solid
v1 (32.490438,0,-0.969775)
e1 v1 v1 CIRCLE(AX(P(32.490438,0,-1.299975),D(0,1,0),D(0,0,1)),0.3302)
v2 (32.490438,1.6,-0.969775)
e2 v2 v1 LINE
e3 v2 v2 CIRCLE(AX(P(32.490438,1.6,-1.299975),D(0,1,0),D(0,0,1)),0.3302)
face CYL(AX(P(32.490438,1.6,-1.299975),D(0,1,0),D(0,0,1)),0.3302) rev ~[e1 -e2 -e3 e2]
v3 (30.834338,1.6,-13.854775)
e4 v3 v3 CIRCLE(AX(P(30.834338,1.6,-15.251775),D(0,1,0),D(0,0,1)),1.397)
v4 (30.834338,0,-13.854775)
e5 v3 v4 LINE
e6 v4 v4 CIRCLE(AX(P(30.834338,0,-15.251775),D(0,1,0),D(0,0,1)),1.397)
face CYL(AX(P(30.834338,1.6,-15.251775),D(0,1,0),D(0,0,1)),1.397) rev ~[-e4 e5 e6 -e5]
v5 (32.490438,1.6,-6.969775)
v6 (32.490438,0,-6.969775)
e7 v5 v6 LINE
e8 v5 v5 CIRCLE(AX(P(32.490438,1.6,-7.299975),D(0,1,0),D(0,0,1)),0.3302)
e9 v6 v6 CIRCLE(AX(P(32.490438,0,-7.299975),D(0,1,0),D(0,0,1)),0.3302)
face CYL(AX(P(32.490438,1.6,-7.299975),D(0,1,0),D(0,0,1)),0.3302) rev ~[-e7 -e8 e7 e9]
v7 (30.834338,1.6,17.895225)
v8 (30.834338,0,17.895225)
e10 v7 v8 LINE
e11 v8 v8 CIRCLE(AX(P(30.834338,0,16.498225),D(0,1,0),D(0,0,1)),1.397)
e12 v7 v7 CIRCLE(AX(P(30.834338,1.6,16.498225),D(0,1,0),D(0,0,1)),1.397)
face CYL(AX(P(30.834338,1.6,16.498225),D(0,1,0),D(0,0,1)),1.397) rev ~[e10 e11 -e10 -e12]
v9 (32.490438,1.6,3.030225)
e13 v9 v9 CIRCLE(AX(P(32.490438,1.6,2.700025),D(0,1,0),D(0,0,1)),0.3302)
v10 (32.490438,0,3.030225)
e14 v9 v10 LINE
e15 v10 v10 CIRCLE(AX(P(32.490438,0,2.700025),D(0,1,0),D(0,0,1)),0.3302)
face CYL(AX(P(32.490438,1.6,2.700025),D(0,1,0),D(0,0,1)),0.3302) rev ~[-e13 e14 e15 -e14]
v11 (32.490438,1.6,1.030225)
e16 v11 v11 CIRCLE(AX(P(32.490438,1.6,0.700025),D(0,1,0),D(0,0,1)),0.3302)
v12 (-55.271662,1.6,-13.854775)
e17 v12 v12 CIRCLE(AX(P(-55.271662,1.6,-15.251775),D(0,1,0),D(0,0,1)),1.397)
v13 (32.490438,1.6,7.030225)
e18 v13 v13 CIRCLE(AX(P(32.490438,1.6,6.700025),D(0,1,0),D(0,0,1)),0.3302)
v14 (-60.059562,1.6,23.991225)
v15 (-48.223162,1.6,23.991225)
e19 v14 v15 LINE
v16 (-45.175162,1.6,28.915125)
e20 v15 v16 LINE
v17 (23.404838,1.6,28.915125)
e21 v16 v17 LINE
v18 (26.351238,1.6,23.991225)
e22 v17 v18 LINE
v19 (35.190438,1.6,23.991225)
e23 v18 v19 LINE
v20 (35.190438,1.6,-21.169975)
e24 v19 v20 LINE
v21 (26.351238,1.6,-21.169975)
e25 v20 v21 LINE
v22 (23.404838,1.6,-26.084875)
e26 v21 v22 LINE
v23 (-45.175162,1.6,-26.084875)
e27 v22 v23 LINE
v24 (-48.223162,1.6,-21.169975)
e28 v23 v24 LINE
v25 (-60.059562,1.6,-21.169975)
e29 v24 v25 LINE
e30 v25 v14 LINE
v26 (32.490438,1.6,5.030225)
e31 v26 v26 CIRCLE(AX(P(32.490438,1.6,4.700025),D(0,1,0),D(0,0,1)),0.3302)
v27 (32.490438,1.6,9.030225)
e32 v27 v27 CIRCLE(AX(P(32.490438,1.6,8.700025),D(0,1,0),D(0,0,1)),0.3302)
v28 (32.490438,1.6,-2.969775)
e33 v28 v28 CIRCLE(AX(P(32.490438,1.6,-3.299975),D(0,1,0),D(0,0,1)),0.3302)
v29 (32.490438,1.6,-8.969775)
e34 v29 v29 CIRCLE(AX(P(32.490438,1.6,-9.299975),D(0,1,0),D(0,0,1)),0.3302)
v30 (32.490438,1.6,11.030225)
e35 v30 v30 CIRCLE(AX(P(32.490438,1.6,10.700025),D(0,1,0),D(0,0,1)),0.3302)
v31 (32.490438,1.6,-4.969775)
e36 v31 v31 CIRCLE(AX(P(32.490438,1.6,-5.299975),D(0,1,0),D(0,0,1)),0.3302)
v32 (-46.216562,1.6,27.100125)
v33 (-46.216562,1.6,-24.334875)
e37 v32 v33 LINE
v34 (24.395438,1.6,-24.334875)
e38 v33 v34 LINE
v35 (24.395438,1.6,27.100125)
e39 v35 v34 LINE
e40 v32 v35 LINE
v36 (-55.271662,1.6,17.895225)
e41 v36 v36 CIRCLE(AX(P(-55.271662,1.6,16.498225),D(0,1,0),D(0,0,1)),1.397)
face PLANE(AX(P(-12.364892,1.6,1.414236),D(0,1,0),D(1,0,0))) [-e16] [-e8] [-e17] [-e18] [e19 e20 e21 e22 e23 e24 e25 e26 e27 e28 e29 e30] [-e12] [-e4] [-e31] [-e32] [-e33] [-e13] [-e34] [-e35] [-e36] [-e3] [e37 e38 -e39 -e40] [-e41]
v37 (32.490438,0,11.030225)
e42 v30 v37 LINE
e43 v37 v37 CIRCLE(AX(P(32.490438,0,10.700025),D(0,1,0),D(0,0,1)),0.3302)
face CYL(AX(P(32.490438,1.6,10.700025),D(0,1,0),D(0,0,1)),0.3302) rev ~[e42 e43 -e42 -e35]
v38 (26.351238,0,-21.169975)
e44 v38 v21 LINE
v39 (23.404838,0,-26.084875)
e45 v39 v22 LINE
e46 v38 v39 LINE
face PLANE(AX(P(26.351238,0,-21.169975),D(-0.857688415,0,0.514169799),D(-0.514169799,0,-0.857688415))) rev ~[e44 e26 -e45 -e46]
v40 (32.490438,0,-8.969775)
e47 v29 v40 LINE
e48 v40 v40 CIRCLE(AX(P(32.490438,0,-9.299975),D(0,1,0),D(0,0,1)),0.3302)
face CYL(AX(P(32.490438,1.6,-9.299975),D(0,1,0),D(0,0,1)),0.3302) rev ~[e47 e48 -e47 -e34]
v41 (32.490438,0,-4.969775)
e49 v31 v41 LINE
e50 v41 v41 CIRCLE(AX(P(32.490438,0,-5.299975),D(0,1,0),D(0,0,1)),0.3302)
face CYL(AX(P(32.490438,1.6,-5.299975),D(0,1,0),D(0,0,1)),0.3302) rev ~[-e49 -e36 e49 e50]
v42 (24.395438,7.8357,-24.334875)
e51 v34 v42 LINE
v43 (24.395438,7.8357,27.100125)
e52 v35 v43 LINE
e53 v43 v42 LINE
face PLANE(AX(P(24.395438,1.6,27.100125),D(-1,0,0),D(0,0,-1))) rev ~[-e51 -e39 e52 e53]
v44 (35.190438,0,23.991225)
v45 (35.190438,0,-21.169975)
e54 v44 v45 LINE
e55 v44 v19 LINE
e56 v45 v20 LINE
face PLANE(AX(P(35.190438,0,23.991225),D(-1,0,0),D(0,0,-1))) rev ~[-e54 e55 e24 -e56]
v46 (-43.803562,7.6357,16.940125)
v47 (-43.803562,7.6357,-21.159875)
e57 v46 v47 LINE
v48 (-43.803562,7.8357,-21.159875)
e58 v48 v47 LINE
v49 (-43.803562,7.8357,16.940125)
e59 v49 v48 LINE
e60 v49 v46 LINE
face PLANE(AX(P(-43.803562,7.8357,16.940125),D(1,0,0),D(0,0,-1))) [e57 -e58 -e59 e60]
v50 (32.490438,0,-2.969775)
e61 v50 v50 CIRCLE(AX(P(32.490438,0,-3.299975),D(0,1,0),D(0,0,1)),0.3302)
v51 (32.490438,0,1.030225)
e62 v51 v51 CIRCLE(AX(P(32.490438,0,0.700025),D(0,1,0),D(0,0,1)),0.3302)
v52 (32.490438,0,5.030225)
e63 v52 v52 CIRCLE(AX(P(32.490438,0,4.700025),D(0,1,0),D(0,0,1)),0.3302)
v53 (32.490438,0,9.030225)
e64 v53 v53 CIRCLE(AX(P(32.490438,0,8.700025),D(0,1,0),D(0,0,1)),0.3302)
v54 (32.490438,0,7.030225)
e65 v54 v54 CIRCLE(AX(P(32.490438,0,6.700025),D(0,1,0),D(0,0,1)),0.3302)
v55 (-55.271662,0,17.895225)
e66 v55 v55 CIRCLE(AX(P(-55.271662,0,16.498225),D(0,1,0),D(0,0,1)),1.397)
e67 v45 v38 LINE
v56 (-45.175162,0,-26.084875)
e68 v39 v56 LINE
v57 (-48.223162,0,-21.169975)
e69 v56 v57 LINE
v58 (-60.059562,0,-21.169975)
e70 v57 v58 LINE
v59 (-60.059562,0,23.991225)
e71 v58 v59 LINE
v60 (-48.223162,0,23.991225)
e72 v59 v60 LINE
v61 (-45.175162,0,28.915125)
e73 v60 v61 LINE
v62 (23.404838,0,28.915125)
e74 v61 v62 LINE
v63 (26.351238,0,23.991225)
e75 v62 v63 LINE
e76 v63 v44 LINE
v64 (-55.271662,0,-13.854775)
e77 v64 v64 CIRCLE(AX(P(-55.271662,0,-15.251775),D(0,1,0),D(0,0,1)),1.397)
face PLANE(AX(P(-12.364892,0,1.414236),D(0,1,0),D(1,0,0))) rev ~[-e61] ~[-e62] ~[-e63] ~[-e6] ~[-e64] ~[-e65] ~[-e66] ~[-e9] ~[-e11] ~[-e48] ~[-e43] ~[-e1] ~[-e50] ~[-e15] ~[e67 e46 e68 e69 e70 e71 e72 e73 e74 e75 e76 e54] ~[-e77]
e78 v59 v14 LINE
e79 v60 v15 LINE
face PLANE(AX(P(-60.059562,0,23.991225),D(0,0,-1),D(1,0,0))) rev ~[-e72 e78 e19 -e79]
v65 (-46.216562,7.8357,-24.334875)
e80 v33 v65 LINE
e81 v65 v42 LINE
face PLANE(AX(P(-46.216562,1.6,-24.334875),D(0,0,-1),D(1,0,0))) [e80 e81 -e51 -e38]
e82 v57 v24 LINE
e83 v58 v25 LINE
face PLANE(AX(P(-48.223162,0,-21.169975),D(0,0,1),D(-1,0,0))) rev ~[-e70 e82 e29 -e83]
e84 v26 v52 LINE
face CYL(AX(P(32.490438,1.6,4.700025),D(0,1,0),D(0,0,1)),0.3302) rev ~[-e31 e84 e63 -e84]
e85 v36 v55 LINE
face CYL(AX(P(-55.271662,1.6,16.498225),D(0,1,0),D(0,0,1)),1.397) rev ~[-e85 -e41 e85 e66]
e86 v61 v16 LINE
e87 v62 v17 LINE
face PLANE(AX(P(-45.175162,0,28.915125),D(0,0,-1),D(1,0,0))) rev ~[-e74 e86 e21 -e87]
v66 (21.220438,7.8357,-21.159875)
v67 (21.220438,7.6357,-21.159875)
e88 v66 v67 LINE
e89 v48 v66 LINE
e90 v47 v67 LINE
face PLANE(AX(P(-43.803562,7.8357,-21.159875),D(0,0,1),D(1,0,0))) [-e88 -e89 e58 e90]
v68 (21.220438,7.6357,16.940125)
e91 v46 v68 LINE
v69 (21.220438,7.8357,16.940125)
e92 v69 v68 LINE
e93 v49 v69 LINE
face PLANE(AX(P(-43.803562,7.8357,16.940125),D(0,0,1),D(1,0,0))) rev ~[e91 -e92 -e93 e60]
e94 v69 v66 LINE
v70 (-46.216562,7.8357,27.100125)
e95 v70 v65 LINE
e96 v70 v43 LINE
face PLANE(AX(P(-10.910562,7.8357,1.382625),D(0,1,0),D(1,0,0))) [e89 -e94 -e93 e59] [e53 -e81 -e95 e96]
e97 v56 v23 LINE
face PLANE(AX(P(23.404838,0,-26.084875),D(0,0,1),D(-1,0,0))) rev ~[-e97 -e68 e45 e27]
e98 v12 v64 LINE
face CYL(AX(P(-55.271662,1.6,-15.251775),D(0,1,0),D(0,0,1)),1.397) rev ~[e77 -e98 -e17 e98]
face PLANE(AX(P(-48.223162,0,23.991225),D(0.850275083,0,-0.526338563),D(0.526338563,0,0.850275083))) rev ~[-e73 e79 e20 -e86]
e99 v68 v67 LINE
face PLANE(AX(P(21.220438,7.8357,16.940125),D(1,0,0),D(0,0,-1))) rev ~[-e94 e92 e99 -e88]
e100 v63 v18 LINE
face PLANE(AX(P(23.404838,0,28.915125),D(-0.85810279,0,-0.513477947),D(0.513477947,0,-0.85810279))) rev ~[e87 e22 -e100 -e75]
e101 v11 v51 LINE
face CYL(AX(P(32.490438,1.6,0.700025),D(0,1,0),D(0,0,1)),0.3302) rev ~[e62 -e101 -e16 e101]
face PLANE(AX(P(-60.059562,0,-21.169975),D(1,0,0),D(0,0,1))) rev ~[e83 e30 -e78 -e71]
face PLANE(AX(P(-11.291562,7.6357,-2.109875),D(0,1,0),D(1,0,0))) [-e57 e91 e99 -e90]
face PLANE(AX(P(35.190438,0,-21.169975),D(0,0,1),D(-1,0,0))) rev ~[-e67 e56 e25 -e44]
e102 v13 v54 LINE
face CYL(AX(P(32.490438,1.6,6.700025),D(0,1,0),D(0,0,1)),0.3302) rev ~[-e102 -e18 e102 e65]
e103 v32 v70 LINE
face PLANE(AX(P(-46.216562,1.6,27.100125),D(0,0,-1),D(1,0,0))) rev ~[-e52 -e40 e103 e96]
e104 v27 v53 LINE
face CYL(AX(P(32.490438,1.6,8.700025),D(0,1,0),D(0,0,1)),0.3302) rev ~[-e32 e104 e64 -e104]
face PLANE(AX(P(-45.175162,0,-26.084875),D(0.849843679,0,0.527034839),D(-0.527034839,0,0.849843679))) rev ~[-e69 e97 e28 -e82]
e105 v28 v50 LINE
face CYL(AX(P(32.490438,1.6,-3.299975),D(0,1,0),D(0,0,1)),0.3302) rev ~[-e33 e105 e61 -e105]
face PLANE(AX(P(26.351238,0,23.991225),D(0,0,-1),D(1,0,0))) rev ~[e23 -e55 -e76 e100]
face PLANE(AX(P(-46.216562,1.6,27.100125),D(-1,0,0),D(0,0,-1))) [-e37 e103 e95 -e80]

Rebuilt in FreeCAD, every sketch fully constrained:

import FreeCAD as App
import Part
import Sketcher

V = App.Vector
Q = App.Units.Quantity

doc = App.newDocument("Part")
params = doc.addObject("Spreadsheet::Sheet", "Params")
for row, (alias, value) in enumerate([
    ("sketch1_width", "2.7 in"),
    ("sketch1_width2", "0.466 in"),
    ("sketch1_width3", "0.348 in"),
    ("sketch1_height", "1.778 in"),
    ("pad1_length", "1.6 mm"),
    ("sketch2_diameter", "0.11 in"),
    ("sketch3_width", "2.78 in"),
    ("sketch3_height", "2.025 in"),
    ("pad2_length", "0.2455 in"),
    ("sketch4_height", "1.5 in"),
    ("sketch4_width", "2.56 in"),
    ("pocket2_length", "0.2 mm"),
    ("sketch5_diameter", "0.026 in"),
    ("linearpattern_pitch", "2 mm"),
], start=1):
    params.set(f"A{row}", alias)
    params.set(f"B{row}", "=" + value)
    params.setAlias(f"B{row}", alias)

body = doc.addObject("PartDesign::Body", "Body")

sketch1 = body.newObject("Sketcher::SketchObject", "Sketch")
sketch1.AttachmentSupport = (doc.getObject("XZ_Plane"), [""])
sketch1.MapMode = "FlatFace"
sketch1.addGeometry(Part.LineSegment(V(-60, -21, 0), V(-60, 24, 0)), False)
sketch1.addGeometry(Part.LineSegment(V(-60, 24, 0), V(-48, 24, 0)), False)
sketch1.addGeometry(Part.LineSegment(V(-48, 24, 0), V(-45, 29, 0)), False)
sketch1.addGeometry(Part.LineSegment(V(-45, 29, 0), V(23, 29, 0)), False)
sketch1.addGeometry(Part.LineSegment(V(23, 29, 0), V(26, 24, 0)), False)
sketch1.addGeometry(Part.LineSegment(V(26, 24, 0), V(35, 24, 0)), False)
sketch1.addGeometry(Part.LineSegment(V(35, 24, 0), V(35, -21, 0)), False)
sketch1.addGeometry(Part.LineSegment(V(35, -21, 0), V(26, -21, 0)), False)
sketch1.addGeometry(Part.LineSegment(V(26, -21, 0), V(23, -26, 0)), False)
sketch1.addGeometry(Part.LineSegment(V(23, -26, 0), V(-45, -26, 0)), False)
sketch1.addGeometry(Part.LineSegment(V(-45, -26, 0), V(-48, -21, 0)), False)
sketch1.addGeometry(Part.LineSegment(V(-48, -21, 0), V(-60, -21, 0)), False)
sketch1.addConstraint(Sketcher.Constraint("Coincident", 0, 2, 1, 1))
sketch1.addConstraint(Sketcher.Constraint("Coincident", 1, 2, 2, 1))
sketch1.addConstraint(Sketcher.Constraint("Coincident", 2, 2, 3, 1))
sketch1.addConstraint(Sketcher.Constraint("Coincident", 3, 2, 4, 1))
sketch1.addConstraint(Sketcher.Constraint("Coincident", 4, 2, 5, 1))
sketch1.addConstraint(Sketcher.Constraint("Coincident", 5, 2, 6, 1))
sketch1.addConstraint(Sketcher.Constraint("Coincident", 6, 2, 7, 1))
sketch1.addConstraint(Sketcher.Constraint("Coincident", 7, 2, 8, 1))
sketch1.addConstraint(Sketcher.Constraint("Coincident", 8, 2, 9, 1))
sketch1.addConstraint(Sketcher.Constraint("Coincident", 9, 2, 10, 1))
sketch1.addConstraint(Sketcher.Constraint("Coincident", 10, 2, 11, 1))
sketch1.addConstraint(Sketcher.Constraint("Coincident", 11, 2, 0, 1))
sketch1.addConstraint(Sketcher.Constraint("Vertical", 0))
sketch1.addConstraint(Sketcher.Constraint("Horizontal", 1))
sketch1.addConstraint(Sketcher.Constraint("Horizontal", 3))
sketch1.addConstraint(Sketcher.Constraint("Horizontal", 5))
sketch1.addConstraint(Sketcher.Constraint("Vertical", 6))
sketch1.addConstraint(Sketcher.Constraint("Horizontal", 7))
sketch1.addConstraint(Sketcher.Constraint("Horizontal", 9))
sketch1.addConstraint(Sketcher.Constraint("Horizontal", 11))
sketch1.addConstraint(Sketcher.Constraint("Horizontal", 1, 2, 4, 2))
sketch1.addConstraint(Sketcher.Constraint("Horizontal", 7, 2, 10, 2))
sketch1.addConstraint(Sketcher.Constraint("Vertical", 4, 2, 7, 2))
sketch1.addConstraint(Sketcher.Constraint("Vertical", 3, 2, 8, 2))
sketch1.addConstraint(Sketcher.Constraint("Vertical", 2, 2, 9, 2))
sketch1.addConstraint(Sketcher.Constraint("Vertical", 1, 2, 10, 2))
sketch1.addConstraint(Sketcher.Constraint("DistanceX", 3, 1, 3, 2, Q("2.7 in")))
sketch1.addConstraint(Sketcher.Constraint("DistanceX", 1, 1, 1, 2, Q("0.466 in")))
sketch1.addConstraint(Sketcher.Constraint("DistanceX", 5, 1, 5, 2, Q("0.348 in")))
sketch1.addConstraint(Sketcher.Constraint("DistanceY", 0, 1, 0, 2, Q("1.778 in")))
sketch1.addConstraint(Sketcher.Constraint("DistanceX", 1, 2, 2, 2, Q("0.12 in")))
sketch1.addConstraint(Sketcher.Constraint("DistanceX", 0, 2, 5, 2, Q("3.75 in")))
sketch1.addConstraint(Sketcher.Constraint("DistanceY", 8, 2, 7, 2, Q("0.1935 in")))
sketch1.addConstraint(Sketcher.Constraint("DistanceY", 1, 2, 2, 2, 4.9239))
sketch1.addConstraint(Sketcher.Constraint("DistanceX", 0, 2, -1, 1, 60.059562))
sketch1.addConstraint(Sketcher.Constraint("DistanceY", -1, 1, 0, 2, 23.991225))
sketch1.setExpression("Constraints[26]", "Params.sketch1_width")
sketch1.setExpression("Constraints[27]", "Params.sketch1_width2")
sketch1.setExpression("Constraints[28]", "Params.sketch1_width3")
sketch1.setExpression("Constraints[29]", "Params.sketch1_height")
pad1 = body.newObject("PartDesign::Pad", "Pad")
pad1.Profile = sketch1
pad1.setExpression("Length", "Params.pad1_length")
pad1.Reversed = True

sketch2 = body.newObject("Sketcher::SketchObject", "Sketch001")
sketch2.AttachmentSupport = (doc.getObject("XZ_Plane"), [""])
sketch2.MapMode = "FlatFace"
sketch2.AttachmentOffset = App.Placement(V(0, 0, -1.6), App.Rotation())
sketch2.addGeometry(Part.Circle(V(-55.3, -15.3, 0), V(0, 0, 1), 1.4), False)
sketch2.addGeometry(Part.Circle(V(-55.3, 16.5, 0), V(0, 0, 1), 1.4), False)
sketch2.addGeometry(Part.Circle(V(30.8, 16.5, 0), V(0, 0, 1), 1.4), False)
sketch2.addGeometry(Part.Circle(V(30.8, -15.3, 0), V(0, 0, 1), 1.4), False)
sketch2.addConstraint(Sketcher.Constraint("Equal", 0, 1))
sketch2.addConstraint(Sketcher.Constraint("Equal", 1, 2))
sketch2.addConstraint(Sketcher.Constraint("Equal", 2, 3))
sketch2.addConstraint(Sketcher.Constraint("Horizontal", 1, 3, 2, 3))
sketch2.addConstraint(Sketcher.Constraint("Horizontal", 0, 3, 3, 3))
sketch2.addConstraint(Sketcher.Constraint("Vertical", 0, 3, 1, 3))
sketch2.addConstraint(Sketcher.Constraint("Vertical", 2, 3, 3, 3))
sketch2.addConstraint(Sketcher.Constraint("Diameter", 0, Q("0.11 in")))
sketch2.addConstraint(Sketcher.Constraint("DistanceY", 0, 3, 1, 3, Q("1.25 in")))
sketch2.addConstraint(Sketcher.Constraint("DistanceX", 1, 3, 2, 3, Q("3.39 in")))
sketch2.addConstraint(Sketcher.Constraint("DistanceX", 0, 3, -1, 1, 55.271662))
sketch2.addConstraint(Sketcher.Constraint("DistanceY", 0, 3, -1, 1, 15.251775))
sketch2.setExpression("Constraints[7]", "Params.sketch2_diameter")
pocket1 = body.newObject("PartDesign::Pocket", "Pocket")
pocket1.Profile = sketch2
pocket1.Type = "ThroughAll"
pocket1.Reversed = True

sketch3 = body.newObject("Sketcher::SketchObject", "Sketch002")
sketch3.AttachmentSupport = (doc.getObject("XZ_Plane"), [""])
sketch3.MapMode = "FlatFace"
sketch3.AttachmentOffset = App.Placement(V(0, 0, -1.6), App.Rotation())
sketch3.addGeometry(Part.LineSegment(V(-46, -24, 0), V(-46, 27, 0)), False)
sketch3.addGeometry(Part.LineSegment(V(-46, 27, 0), V(24, 27, 0)), False)
sketch3.addGeometry(Part.LineSegment(V(24, 27, 0), V(24, -24, 0)), False)
sketch3.addGeometry(Part.LineSegment(V(24, -24, 0), V(-46, -24, 0)), False)
sketch3.addConstraint(Sketcher.Constraint("Coincident", 0, 2, 1, 1))
sketch3.addConstraint(Sketcher.Constraint("Coincident", 1, 2, 2, 1))
sketch3.addConstraint(Sketcher.Constraint("Coincident", 2, 2, 3, 1))
sketch3.addConstraint(Sketcher.Constraint("Coincident", 3, 2, 0, 1))
sketch3.addConstraint(Sketcher.Constraint("Vertical", 0))
sketch3.addConstraint(Sketcher.Constraint("Horizontal", 1))
sketch3.addConstraint(Sketcher.Constraint("Vertical", 2))
sketch3.addConstraint(Sketcher.Constraint("Horizontal", 3))
sketch3.addConstraint(Sketcher.Constraint("DistanceX", 1, 1, 1, 2, Q("2.78 in")))
sketch3.addConstraint(Sketcher.Constraint("DistanceY", 0, 1, 0, 2, Q("2.025 in")))
sketch3.addConstraint(Sketcher.Constraint("DistanceX", 0, 2, -1, 1, 46.216562))
sketch3.addConstraint(Sketcher.Constraint("DistanceY", -1, 1, 0, 2, 27.100125))
sketch3.setExpression("Constraints[8]", "Params.sketch3_width")
sketch3.setExpression("Constraints[9]", "Params.sketch3_height")
pad2 = body.newObject("PartDesign::Pad", "Pad001")
pad2.Profile = sketch3
pad2.setExpression("Length", "Params.pad2_length")
pad2.Reversed = True

sketch4 = body.newObject("Sketcher::SketchObject", "Sketch003")
sketch4.AttachmentSupport = (doc.getObject("XZ_Plane"), [""])
sketch4.MapMode = "FlatFace"
sketch4.AttachmentOffset = App.Placement(V(0, 0, -7.8357), App.Rotation())
sketch4.addGeometry(Part.LineSegment(V(-44, -21, 0), V(-44, 17, 0)), False)
sketch4.addGeometry(Part.LineSegment(V(-44, 17, 0), V(21, 17, 0)), False)
sketch4.addGeometry(Part.LineSegment(V(21, 17, 0), V(21, -21, 0)), False)
sketch4.addGeometry(Part.LineSegment(V(21, -21, 0), V(-44, -21, 0)), False)
sketch4.addConstraint(Sketcher.Constraint("Coincident", 0, 2, 1, 1))
sketch4.addConstraint(Sketcher.Constraint("Coincident", 1, 2, 2, 1))
sketch4.addConstraint(Sketcher.Constraint("Coincident", 2, 2, 3, 1))
sketch4.addConstraint(Sketcher.Constraint("Coincident", 3, 2, 0, 1))
sketch4.addConstraint(Sketcher.Constraint("Vertical", 0))
sketch4.addConstraint(Sketcher.Constraint("Horizontal", 1))
sketch4.addConstraint(Sketcher.Constraint("Vertical", 2))
sketch4.addConstraint(Sketcher.Constraint("Horizontal", 3))
sketch4.addConstraint(Sketcher.Constraint("DistanceY", 0, 1, 0, 2, Q("1.5 in")))
sketch4.addConstraint(Sketcher.Constraint("DistanceX", 1, 1, 1, 2, Q("2.56 in")))
sketch4.addConstraint(Sketcher.Constraint("DistanceX", 0, 2, -1, 1, 43.803562))
sketch4.addConstraint(Sketcher.Constraint("DistanceY", -1, 1, 0, 2, 16.940125))
sketch4.setExpression("Constraints[8]", "Params.sketch4_height")
sketch4.setExpression("Constraints[9]", "Params.sketch4_width")
pocket2 = body.newObject("PartDesign::Pocket", "Pocket001")
pocket2.Profile = sketch4
pocket2.setExpression("Length", "Params.pocket2_length")
pocket2.Reversed = True

sketch5 = body.newObject("Sketcher::SketchObject", "Sketch004")
sketch5.AttachmentSupport = (doc.getObject("XZ_Plane"), [""])
sketch5.MapMode = "FlatFace"
sketch5.AttachmentOffset = App.Placement(V(0, 0, -1.6), App.Rotation())
sketch5.addGeometry(Part.Circle(V(32.49, -9.3, 0), V(0, 0, 1), 0.33), False)
sketch5.addConstraint(Sketcher.Constraint("Diameter", 0, Q("0.026 in")))
sketch5.addConstraint(Sketcher.Constraint("DistanceX", -1, 1, 0, 3, 32.490438))
sketch5.addConstraint(Sketcher.Constraint("DistanceY", 0, 3, -1, 1, 9.299975))
sketch5.setExpression("Constraints[0]", "Params.sketch5_diameter")
pocket3 = body.newObject("PartDesign::Pocket", "Pocket002")
pocket3.Profile = sketch5
pocket3.Type = "ThroughAll"
pocket3.Reversed = True
doc.recompute()

linearpattern = body.newObject("PartDesign::LinearPattern", "LinearPattern")
linearpattern.Originals = [pocket3]
linearpattern.Direction = (doc.getObject("Z_Axis"), [""])
linearpattern.Mode = "offset"
linearpattern.setExpression("Offset", "Params.linearpattern_pitch")
linearpattern.Occurrences = 11
body.Tip = linearpattern

doc.recompute()
